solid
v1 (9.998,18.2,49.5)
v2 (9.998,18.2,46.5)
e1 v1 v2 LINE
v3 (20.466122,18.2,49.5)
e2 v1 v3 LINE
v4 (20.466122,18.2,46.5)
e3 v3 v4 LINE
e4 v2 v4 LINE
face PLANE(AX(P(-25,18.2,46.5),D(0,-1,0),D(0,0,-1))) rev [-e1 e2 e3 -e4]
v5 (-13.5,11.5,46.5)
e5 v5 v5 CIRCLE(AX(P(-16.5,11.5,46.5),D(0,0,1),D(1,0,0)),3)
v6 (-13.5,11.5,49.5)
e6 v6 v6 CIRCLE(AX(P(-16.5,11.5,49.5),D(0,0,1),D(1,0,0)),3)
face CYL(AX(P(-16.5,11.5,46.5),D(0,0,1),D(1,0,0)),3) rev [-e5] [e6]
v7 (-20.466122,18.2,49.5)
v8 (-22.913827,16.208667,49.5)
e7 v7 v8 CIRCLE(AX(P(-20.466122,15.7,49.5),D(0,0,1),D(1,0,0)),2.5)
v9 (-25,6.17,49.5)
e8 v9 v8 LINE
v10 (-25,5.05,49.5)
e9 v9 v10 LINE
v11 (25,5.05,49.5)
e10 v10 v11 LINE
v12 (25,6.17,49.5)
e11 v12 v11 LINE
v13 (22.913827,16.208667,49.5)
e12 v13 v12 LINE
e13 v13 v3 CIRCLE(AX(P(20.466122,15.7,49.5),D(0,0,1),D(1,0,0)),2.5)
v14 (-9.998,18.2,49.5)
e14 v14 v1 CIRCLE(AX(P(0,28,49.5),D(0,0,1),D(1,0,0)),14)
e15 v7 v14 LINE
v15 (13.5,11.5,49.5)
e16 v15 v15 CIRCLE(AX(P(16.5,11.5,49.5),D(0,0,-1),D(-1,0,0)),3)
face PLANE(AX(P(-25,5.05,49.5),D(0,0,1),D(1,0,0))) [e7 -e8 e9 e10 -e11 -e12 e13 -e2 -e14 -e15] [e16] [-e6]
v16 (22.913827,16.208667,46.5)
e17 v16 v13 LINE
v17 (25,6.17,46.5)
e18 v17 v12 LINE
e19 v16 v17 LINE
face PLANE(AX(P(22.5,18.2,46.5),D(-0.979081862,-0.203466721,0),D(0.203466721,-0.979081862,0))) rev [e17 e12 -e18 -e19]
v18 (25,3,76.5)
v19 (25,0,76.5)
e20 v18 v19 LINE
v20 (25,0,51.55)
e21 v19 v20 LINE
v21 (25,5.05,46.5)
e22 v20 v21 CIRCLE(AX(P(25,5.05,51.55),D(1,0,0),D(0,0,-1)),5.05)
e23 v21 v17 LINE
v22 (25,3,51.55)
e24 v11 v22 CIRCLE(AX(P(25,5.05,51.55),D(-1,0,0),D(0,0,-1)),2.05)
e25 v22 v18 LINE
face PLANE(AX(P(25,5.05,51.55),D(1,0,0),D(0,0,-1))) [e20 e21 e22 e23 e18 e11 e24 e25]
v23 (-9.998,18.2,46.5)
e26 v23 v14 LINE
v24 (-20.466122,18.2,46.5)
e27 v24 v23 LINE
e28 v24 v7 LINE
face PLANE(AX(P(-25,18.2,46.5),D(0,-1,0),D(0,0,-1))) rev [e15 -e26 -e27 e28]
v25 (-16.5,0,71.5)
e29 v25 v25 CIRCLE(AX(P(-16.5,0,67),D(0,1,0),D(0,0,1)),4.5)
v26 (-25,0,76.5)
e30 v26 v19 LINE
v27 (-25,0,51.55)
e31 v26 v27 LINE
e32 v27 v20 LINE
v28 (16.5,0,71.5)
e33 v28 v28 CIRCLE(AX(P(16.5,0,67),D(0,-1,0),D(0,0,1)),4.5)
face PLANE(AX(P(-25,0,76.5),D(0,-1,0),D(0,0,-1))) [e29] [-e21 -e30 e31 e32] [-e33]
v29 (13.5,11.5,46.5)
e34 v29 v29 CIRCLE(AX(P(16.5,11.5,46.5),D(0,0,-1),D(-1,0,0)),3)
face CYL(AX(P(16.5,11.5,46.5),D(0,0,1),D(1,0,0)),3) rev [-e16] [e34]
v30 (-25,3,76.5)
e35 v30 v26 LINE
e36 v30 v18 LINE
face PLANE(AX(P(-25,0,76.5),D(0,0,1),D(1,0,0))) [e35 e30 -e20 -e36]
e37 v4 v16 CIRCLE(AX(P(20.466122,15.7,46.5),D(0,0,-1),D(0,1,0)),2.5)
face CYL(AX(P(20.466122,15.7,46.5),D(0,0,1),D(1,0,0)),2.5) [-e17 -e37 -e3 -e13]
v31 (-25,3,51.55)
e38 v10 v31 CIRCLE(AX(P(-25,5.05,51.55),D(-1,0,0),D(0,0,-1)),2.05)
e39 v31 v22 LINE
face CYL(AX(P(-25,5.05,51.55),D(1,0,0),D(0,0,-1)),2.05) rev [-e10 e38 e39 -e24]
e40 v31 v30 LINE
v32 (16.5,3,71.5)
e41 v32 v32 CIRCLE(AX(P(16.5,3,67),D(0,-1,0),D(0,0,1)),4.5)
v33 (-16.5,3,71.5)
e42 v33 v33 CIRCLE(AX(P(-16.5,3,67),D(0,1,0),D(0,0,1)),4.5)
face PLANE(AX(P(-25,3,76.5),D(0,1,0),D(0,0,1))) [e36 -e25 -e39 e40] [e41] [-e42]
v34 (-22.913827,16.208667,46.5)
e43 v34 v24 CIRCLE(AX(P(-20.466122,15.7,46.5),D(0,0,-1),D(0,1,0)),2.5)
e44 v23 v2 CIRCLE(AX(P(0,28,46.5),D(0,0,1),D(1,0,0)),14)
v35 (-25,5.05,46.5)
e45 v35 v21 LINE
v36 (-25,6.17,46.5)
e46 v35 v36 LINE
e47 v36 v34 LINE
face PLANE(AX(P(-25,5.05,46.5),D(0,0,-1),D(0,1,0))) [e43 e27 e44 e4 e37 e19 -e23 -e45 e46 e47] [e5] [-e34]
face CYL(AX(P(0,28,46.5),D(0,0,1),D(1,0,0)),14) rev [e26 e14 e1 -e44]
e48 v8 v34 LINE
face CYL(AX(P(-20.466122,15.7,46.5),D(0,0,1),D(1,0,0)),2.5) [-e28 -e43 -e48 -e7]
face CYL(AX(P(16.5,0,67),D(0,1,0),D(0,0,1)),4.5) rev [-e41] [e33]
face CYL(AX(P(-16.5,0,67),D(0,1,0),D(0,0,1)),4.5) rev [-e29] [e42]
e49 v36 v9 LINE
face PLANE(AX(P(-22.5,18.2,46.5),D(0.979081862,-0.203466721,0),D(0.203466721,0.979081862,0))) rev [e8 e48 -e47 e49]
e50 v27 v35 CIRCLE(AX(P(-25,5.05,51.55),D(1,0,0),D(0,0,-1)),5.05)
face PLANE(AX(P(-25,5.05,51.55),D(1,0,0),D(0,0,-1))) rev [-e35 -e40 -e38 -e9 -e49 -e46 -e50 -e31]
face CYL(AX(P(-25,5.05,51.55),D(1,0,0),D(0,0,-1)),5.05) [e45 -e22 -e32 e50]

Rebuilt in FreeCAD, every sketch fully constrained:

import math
import FreeCAD as App
import Part
import Sketcher
from FreeCAD import Vector


def edges_at(feature, points):
    """Names of the edges that pass closest to the given points."""
    edges = feature.Shape.Edges
    near = lambda p: min(range(len(edges)), key=lambda i: edges[i].distToShape(Part.Vertex(*p))[0])
    return sorted({f"Edge{near(p) + 1}" for p in points})


def add_polygon(sketch, points):
    """Adds a closed chain of lines whose ends are joined by coincident constraints."""
    first, n = sketch.GeometryCount, len(points)
    for a, b in zip(points, points[1:] + points[:1]):
        sketch.addGeometry(Part.LineSegment(App.Vector(*a, 0), App.Vector(*b, 0)), False)
    for i in range(n):
        sketch.addConstraint(Sketcher.Constraint("Coincident", first + i, 2, first + (i + 1) % n, 1))

doc = App.newDocument("Part")
params = doc.addObject("Spreadsheet::Sheet", "Params")
for row, (alias, value) in enumerate([
    ("sketch1_width", "3 mm"),
    ("sketch1_radius", "5.05 mm"),
    ("pad1_length", "50 mm"),
    ("sketch2_diameter", "9 mm"),
    ("sketch3_diameter", "6 mm"),
    ("sketch4_diameter", "28 mm"),
    ("sketch5_width", "50 mm"),
    ("sketch5_height", "9.8 mm"),
    ("sketch6_width", "45 mm"),
    ("sketch6_width2", "50 mm"),
    ("sketch6_height", "21.83 mm"),
    ("fillet_radius", "2.5 mm"),
], start=1):
    params.set(f"A{row}", alias)
    params.set(f"B{row}", "=" + value)
    params.setAlias(f"B{row}", alias)

body = doc.addObject("PartDesign::Body", "Body")

# Sketch on YZ plane
sketch1 = body.newObject("Sketcher::SketchObject", "Sketch")
sketch1.AttachmentSupport = (doc.getObject("YZ_Plane"), [""])
sketch1.MapMode = "FlatFace"
sketch1.AttachmentOffset = App.Placement(Vector(0, 0, 25), App.Rotation())
sketch1.addGeometry([
    Part.LineSegment(Vector(3, 76.5, 0), Vector(0, 76.5, 0)),  # 0
    Part.LineSegment(Vector(0, 76.5, 0), Vector(0, 51.55, 0)),  # 1
    Part.ArcOfCircle(Part.Circle(Vector(5.05, 51.55, 0), Vector(0, 0, 1), 5.05), math.radians(180), math.radians(270)),  # 2
    Part.LineSegment(Vector(5.05, 46.5, 0), Vector(28, 46.5, 0)),  # 3
    Part.LineSegment(Vector(28, 46.5, 0), Vector(28, 49.5, 0)),  # 4
    Part.LineSegment(Vector(28, 49.5, 0), Vector(5.05, 49.5, 0)),  # 5
    Part.ArcOfCircle(Part.Circle(Vector(5.05, 51.55, 0), Vector(0, 0, 1), 2.05), math.radians(-180), math.radians(-90)),  # 6
    Part.LineSegment(Vector(3, 51.55, 0), Vector(3, 76.5, 0)),  # 7
], False)
sketch1.addConstraint([
    Sketcher.Constraint("Coincident", 0, 2, 1, 1),
    Sketcher.Constraint("Tangent", 1, 2, 2, 1),
    Sketcher.Constraint("Tangent", 2, 2, 3, 1),
    Sketcher.Constraint("Coincident", 3, 2, 4, 1),
    Sketcher.Constraint("Coincident", 4, 2, 5, 1),
    Sketcher.Constraint("Tangent", 5, 2, 6, 2),
    Sketcher.Constraint("Tangent", 6, 1, 7, 1),
    Sketcher.Constraint("Coincident", 7, 2, 0, 1),
    Sketcher.Constraint("Horizontal", 0),
    Sketcher.Constraint("Vertical", 1),
    Sketcher.Constraint("Horizontal", 3),
    Sketcher.Constraint("Vertical", 4),
    Sketcher.Constraint("Horizontal", 5),
    Sketcher.Constraint("Vertical", 7),
    Sketcher.Constraint("Coincident", 6, 3, 2, 3),
    Sketcher.Constraint("PointOnObject", 0, 2, -2),
    Sketcher.Constraint("DistanceX", 0, 2, 0, 1, 3.0),
    Sketcher.Constraint("Radius", 2, 5.05),
    Sketcher.Constraint("DistanceX", -1, 1, 3, 2, 28.0),
    Sketcher.Constraint("DistanceY", 2, 2, 0, 2, 30.0),
    Sketcher.Constraint("DistanceY", -1, 1, 0, 2, 76.5),
])
sketch1.setExpression("Constraints[16]", "Params.sketch1_width")
sketch1.setExpression("Constraints[17]", "Params.sketch1_radius")
pad1 = body.newObject("PartDesign::Pad", "Pad")
pad1.Profile = sketch1
pad1.setExpression("Length", "Params.pad1_length")
pad1.Reversed = True

# Sketch on XZ plane
sketch2 = body.newObject("Sketcher::SketchObject", "Sketch001")
sketch2.AttachmentSupport = (doc.getObject("XZ_Plane"), [""])
sketch2.MapMode = "FlatFace"
sketch2.AttachmentOffset = App.Placement(Vector(0, 0, -3), App.Rotation())
sketch2.addGeometry(Part.Circle(Vector(-16.5, 67, 0), Vector(0, 0, 1), 4.5), False)
sketch2.addConstraint([
    Sketcher.Constraint("Diameter", 0, 9.0),
    Sketcher.Constraint("DistanceY", -1, 1, 0, 3, 67.0),
    Sketcher.Constraint("DistanceX", 0, 3, -1, 1, 16.5),
])
sketch2.setExpression("Constraints[0]", "Params.sketch2_diameter")
pocket1 = body.newObject("PartDesign::Pocket", "Pocket")
pocket1.Profile = sketch2
pocket1.Type = "ThroughAll"
pocket1.Reversed = True
doc.recompute()

mirrored = body.newObject("PartDesign::Mirrored", "Mirrored")
mirrored.Originals = [pocket1]
mirrored.MirrorPlane = (doc.getObject("YZ_Plane"), [""])
body.Tip = mirrored

# Sketch on XY plane
sketch3 = body.newObject("Sketcher::SketchObject", "Sketch002")
sketch3.AttachmentSupport = (doc.getObject("XY_Plane"), [""])
sketch3.MapMode = "FlatFace"
sketch3.AttachmentOffset = App.Placement(Vector(0, 0, 49.5), App.Rotation())
sketch3.addGeometry(Part.Circle(Vector(-16.5, 11.5, 0), Vector(0, 0, 1), 3), False)
sketch3.addConstraint([
    Sketcher.Constraint("Diameter", 0, 6.0),
    Sketcher.Constraint("DistanceX", 0, 3, -1, 1, 16.5),
    Sketcher.Constraint("DistanceY", -1, 1, 0, 3, 11.5),
])
sketch3.setExpression("Constraints[0]", "Params.sketch3_diameter")
pocket2 = body.newObject("PartDesign::Pocket", "Pocket001")
pocket2.Profile = sketch3
pocket2.Type = "ThroughAll"
doc.recompute()

mirrored2 = body.newObject("PartDesign::Mirrored", "Mirrored001")
mirrored2.Originals = [pocket2]
mirrored2.MirrorPlane = (doc.getObject("YZ_Plane"), [""])
body.Tip = mirrored2

# Sketch on XY plane
sketch4 = body.newObject("Sketcher::SketchObject", "Sketch003")
sketch4.AttachmentSupport = (doc.getObject("XY_Plane"), [""])
sketch4.MapMode = "FlatFace"
sketch4.AttachmentOffset = App.Placement(Vector(0, 0, 49.5), App.Rotation())
sketch4.addGeometry(Part.Circle(Vector(0, 28, 0), Vector(0, 0, 1), 14), False)
sketch4.addConstraint([
    Sketcher.Constraint("PointOnObject", 0, 3, -2),
    Sketcher.Constraint("Diameter", 0, 28.0),
    Sketcher.Constraint("DistanceY", -1, 1, 0, 3, 28.0),
])
sketch4.setExpression("Constraints[1]", "Params.sketch4_diameter")
pocket3 = body.newObject("PartDesign::Pocket", "Pocket002")
pocket3.Profile = sketch4
pocket3.Type = "ThroughAll"

# Sketch on XY plane
sketch5 = body.newObject("Sketcher::SketchObject", "Sketch004")
sketch5.AttachmentSupport = (doc.getObject("XY_Plane"), [""])
sketch5.MapMode = "FlatFace"
sketch5.AttachmentOffset = App.Placement(Vector(0, 0, 49.5), App.Rotation())
add_polygon(sketch5, [(-25, 28), (-25, 18.2), (25, 18.2), (25, 28)])  # lines 0-3
sketch5.addConstraint([
    Sketcher.Constraint("Vertical", 0),
    Sketcher.Constraint("Horizontal", 1),
    Sketcher.Constraint("Vertical", 2),
    Sketcher.Constraint("Horizontal", 3),
    Sketcher.Constraint("DistanceX", 1, 1, 1, 2, 50.0),
    Sketcher.Constraint("DistanceY", 0, 2, 0, 1, 9.8),
    Sketcher.Constraint("DistanceX", 0, 2, -1, 1, 25.0),
    Sketcher.Constraint("DistanceY", -1, 1, 2, 2, 28.0),
])
sketch5.setExpression("Constraints[8]", "Params.sketch5_width")
sketch5.setExpression("Constraints[9]", "Params.sketch5_height")
pocket4 = body.newObject("PartDesign::Pocket", "Pocket003")
pocket4.Profile = sketch5
pocket4.Type = "ThroughAll"

# Sketch on XY plane
sketch6 = body.newObject("Sketcher::SketchObject", "Sketch005")
sketch6.AttachmentSupport = (doc.getObject("XY_Plane"), [""])
sketch6.MapMode = "FlatFace"
sketch6.AttachmentOffset = App.Placement(Vector(0, 0, 49.5), App.Rotation())
add_polygon(sketch6, [(-22.5, 18.2), (22.5, 18.2), (25, 6.17), (25, 28), (-25, 28), (-25, 6.17)])  # lines 0-5
sketch6.addConstraint([
    Sketcher.Constraint("Horizontal", 0),
    Sketcher.Constraint("Vertical", 2),
    Sketcher.Constraint("Horizontal", 3),
    Sketcher.Constraint("Vertical", 4),
    Sketcher.Constraint("Symmetric", 1, 2, 4, 2, -2),
    Sketcher.Constraint("Equal", 1, 5),
    Sketcher.Constraint("DistanceX", 0, 1, 0, 2, 45.0),
    Sketcher.Constraint("DistanceX", 3, 2, 3, 1, 50.0),
    Sketcher.Constraint("DistanceY", -1, 1, 2, 2, 28.0),
    Sketcher.Constraint("DistanceY", 2, 1, 2, 2, 21.83),
    Sketcher.Constraint("DistanceY", -1, 1, 0, 2, 18.2),
])
sketch6.setExpression("Constraints[12]", "Params.sketch6_width")
sketch6.setExpression("Constraints[13]", "Params.sketch6_width2")
sketch6.setExpression("Constraints[15]", "Params.sketch6_height")
pocket5 = body.newObject("PartDesign::Pocket", "Pocket004")
pocket5.Profile = sketch6
pocket5.Type = "ThroughAll"
doc.recompute()

fillet = body.newObject("PartDesign::Fillet", "Fillet")
fillet.Base = (pocket5, edges_at(pocket5, [(22.5, 18.2, 48), (-22.5, 18.2, 48)]))
fillet.setExpression("Radius", "Params.fillet_radius")

doc.recompute()
